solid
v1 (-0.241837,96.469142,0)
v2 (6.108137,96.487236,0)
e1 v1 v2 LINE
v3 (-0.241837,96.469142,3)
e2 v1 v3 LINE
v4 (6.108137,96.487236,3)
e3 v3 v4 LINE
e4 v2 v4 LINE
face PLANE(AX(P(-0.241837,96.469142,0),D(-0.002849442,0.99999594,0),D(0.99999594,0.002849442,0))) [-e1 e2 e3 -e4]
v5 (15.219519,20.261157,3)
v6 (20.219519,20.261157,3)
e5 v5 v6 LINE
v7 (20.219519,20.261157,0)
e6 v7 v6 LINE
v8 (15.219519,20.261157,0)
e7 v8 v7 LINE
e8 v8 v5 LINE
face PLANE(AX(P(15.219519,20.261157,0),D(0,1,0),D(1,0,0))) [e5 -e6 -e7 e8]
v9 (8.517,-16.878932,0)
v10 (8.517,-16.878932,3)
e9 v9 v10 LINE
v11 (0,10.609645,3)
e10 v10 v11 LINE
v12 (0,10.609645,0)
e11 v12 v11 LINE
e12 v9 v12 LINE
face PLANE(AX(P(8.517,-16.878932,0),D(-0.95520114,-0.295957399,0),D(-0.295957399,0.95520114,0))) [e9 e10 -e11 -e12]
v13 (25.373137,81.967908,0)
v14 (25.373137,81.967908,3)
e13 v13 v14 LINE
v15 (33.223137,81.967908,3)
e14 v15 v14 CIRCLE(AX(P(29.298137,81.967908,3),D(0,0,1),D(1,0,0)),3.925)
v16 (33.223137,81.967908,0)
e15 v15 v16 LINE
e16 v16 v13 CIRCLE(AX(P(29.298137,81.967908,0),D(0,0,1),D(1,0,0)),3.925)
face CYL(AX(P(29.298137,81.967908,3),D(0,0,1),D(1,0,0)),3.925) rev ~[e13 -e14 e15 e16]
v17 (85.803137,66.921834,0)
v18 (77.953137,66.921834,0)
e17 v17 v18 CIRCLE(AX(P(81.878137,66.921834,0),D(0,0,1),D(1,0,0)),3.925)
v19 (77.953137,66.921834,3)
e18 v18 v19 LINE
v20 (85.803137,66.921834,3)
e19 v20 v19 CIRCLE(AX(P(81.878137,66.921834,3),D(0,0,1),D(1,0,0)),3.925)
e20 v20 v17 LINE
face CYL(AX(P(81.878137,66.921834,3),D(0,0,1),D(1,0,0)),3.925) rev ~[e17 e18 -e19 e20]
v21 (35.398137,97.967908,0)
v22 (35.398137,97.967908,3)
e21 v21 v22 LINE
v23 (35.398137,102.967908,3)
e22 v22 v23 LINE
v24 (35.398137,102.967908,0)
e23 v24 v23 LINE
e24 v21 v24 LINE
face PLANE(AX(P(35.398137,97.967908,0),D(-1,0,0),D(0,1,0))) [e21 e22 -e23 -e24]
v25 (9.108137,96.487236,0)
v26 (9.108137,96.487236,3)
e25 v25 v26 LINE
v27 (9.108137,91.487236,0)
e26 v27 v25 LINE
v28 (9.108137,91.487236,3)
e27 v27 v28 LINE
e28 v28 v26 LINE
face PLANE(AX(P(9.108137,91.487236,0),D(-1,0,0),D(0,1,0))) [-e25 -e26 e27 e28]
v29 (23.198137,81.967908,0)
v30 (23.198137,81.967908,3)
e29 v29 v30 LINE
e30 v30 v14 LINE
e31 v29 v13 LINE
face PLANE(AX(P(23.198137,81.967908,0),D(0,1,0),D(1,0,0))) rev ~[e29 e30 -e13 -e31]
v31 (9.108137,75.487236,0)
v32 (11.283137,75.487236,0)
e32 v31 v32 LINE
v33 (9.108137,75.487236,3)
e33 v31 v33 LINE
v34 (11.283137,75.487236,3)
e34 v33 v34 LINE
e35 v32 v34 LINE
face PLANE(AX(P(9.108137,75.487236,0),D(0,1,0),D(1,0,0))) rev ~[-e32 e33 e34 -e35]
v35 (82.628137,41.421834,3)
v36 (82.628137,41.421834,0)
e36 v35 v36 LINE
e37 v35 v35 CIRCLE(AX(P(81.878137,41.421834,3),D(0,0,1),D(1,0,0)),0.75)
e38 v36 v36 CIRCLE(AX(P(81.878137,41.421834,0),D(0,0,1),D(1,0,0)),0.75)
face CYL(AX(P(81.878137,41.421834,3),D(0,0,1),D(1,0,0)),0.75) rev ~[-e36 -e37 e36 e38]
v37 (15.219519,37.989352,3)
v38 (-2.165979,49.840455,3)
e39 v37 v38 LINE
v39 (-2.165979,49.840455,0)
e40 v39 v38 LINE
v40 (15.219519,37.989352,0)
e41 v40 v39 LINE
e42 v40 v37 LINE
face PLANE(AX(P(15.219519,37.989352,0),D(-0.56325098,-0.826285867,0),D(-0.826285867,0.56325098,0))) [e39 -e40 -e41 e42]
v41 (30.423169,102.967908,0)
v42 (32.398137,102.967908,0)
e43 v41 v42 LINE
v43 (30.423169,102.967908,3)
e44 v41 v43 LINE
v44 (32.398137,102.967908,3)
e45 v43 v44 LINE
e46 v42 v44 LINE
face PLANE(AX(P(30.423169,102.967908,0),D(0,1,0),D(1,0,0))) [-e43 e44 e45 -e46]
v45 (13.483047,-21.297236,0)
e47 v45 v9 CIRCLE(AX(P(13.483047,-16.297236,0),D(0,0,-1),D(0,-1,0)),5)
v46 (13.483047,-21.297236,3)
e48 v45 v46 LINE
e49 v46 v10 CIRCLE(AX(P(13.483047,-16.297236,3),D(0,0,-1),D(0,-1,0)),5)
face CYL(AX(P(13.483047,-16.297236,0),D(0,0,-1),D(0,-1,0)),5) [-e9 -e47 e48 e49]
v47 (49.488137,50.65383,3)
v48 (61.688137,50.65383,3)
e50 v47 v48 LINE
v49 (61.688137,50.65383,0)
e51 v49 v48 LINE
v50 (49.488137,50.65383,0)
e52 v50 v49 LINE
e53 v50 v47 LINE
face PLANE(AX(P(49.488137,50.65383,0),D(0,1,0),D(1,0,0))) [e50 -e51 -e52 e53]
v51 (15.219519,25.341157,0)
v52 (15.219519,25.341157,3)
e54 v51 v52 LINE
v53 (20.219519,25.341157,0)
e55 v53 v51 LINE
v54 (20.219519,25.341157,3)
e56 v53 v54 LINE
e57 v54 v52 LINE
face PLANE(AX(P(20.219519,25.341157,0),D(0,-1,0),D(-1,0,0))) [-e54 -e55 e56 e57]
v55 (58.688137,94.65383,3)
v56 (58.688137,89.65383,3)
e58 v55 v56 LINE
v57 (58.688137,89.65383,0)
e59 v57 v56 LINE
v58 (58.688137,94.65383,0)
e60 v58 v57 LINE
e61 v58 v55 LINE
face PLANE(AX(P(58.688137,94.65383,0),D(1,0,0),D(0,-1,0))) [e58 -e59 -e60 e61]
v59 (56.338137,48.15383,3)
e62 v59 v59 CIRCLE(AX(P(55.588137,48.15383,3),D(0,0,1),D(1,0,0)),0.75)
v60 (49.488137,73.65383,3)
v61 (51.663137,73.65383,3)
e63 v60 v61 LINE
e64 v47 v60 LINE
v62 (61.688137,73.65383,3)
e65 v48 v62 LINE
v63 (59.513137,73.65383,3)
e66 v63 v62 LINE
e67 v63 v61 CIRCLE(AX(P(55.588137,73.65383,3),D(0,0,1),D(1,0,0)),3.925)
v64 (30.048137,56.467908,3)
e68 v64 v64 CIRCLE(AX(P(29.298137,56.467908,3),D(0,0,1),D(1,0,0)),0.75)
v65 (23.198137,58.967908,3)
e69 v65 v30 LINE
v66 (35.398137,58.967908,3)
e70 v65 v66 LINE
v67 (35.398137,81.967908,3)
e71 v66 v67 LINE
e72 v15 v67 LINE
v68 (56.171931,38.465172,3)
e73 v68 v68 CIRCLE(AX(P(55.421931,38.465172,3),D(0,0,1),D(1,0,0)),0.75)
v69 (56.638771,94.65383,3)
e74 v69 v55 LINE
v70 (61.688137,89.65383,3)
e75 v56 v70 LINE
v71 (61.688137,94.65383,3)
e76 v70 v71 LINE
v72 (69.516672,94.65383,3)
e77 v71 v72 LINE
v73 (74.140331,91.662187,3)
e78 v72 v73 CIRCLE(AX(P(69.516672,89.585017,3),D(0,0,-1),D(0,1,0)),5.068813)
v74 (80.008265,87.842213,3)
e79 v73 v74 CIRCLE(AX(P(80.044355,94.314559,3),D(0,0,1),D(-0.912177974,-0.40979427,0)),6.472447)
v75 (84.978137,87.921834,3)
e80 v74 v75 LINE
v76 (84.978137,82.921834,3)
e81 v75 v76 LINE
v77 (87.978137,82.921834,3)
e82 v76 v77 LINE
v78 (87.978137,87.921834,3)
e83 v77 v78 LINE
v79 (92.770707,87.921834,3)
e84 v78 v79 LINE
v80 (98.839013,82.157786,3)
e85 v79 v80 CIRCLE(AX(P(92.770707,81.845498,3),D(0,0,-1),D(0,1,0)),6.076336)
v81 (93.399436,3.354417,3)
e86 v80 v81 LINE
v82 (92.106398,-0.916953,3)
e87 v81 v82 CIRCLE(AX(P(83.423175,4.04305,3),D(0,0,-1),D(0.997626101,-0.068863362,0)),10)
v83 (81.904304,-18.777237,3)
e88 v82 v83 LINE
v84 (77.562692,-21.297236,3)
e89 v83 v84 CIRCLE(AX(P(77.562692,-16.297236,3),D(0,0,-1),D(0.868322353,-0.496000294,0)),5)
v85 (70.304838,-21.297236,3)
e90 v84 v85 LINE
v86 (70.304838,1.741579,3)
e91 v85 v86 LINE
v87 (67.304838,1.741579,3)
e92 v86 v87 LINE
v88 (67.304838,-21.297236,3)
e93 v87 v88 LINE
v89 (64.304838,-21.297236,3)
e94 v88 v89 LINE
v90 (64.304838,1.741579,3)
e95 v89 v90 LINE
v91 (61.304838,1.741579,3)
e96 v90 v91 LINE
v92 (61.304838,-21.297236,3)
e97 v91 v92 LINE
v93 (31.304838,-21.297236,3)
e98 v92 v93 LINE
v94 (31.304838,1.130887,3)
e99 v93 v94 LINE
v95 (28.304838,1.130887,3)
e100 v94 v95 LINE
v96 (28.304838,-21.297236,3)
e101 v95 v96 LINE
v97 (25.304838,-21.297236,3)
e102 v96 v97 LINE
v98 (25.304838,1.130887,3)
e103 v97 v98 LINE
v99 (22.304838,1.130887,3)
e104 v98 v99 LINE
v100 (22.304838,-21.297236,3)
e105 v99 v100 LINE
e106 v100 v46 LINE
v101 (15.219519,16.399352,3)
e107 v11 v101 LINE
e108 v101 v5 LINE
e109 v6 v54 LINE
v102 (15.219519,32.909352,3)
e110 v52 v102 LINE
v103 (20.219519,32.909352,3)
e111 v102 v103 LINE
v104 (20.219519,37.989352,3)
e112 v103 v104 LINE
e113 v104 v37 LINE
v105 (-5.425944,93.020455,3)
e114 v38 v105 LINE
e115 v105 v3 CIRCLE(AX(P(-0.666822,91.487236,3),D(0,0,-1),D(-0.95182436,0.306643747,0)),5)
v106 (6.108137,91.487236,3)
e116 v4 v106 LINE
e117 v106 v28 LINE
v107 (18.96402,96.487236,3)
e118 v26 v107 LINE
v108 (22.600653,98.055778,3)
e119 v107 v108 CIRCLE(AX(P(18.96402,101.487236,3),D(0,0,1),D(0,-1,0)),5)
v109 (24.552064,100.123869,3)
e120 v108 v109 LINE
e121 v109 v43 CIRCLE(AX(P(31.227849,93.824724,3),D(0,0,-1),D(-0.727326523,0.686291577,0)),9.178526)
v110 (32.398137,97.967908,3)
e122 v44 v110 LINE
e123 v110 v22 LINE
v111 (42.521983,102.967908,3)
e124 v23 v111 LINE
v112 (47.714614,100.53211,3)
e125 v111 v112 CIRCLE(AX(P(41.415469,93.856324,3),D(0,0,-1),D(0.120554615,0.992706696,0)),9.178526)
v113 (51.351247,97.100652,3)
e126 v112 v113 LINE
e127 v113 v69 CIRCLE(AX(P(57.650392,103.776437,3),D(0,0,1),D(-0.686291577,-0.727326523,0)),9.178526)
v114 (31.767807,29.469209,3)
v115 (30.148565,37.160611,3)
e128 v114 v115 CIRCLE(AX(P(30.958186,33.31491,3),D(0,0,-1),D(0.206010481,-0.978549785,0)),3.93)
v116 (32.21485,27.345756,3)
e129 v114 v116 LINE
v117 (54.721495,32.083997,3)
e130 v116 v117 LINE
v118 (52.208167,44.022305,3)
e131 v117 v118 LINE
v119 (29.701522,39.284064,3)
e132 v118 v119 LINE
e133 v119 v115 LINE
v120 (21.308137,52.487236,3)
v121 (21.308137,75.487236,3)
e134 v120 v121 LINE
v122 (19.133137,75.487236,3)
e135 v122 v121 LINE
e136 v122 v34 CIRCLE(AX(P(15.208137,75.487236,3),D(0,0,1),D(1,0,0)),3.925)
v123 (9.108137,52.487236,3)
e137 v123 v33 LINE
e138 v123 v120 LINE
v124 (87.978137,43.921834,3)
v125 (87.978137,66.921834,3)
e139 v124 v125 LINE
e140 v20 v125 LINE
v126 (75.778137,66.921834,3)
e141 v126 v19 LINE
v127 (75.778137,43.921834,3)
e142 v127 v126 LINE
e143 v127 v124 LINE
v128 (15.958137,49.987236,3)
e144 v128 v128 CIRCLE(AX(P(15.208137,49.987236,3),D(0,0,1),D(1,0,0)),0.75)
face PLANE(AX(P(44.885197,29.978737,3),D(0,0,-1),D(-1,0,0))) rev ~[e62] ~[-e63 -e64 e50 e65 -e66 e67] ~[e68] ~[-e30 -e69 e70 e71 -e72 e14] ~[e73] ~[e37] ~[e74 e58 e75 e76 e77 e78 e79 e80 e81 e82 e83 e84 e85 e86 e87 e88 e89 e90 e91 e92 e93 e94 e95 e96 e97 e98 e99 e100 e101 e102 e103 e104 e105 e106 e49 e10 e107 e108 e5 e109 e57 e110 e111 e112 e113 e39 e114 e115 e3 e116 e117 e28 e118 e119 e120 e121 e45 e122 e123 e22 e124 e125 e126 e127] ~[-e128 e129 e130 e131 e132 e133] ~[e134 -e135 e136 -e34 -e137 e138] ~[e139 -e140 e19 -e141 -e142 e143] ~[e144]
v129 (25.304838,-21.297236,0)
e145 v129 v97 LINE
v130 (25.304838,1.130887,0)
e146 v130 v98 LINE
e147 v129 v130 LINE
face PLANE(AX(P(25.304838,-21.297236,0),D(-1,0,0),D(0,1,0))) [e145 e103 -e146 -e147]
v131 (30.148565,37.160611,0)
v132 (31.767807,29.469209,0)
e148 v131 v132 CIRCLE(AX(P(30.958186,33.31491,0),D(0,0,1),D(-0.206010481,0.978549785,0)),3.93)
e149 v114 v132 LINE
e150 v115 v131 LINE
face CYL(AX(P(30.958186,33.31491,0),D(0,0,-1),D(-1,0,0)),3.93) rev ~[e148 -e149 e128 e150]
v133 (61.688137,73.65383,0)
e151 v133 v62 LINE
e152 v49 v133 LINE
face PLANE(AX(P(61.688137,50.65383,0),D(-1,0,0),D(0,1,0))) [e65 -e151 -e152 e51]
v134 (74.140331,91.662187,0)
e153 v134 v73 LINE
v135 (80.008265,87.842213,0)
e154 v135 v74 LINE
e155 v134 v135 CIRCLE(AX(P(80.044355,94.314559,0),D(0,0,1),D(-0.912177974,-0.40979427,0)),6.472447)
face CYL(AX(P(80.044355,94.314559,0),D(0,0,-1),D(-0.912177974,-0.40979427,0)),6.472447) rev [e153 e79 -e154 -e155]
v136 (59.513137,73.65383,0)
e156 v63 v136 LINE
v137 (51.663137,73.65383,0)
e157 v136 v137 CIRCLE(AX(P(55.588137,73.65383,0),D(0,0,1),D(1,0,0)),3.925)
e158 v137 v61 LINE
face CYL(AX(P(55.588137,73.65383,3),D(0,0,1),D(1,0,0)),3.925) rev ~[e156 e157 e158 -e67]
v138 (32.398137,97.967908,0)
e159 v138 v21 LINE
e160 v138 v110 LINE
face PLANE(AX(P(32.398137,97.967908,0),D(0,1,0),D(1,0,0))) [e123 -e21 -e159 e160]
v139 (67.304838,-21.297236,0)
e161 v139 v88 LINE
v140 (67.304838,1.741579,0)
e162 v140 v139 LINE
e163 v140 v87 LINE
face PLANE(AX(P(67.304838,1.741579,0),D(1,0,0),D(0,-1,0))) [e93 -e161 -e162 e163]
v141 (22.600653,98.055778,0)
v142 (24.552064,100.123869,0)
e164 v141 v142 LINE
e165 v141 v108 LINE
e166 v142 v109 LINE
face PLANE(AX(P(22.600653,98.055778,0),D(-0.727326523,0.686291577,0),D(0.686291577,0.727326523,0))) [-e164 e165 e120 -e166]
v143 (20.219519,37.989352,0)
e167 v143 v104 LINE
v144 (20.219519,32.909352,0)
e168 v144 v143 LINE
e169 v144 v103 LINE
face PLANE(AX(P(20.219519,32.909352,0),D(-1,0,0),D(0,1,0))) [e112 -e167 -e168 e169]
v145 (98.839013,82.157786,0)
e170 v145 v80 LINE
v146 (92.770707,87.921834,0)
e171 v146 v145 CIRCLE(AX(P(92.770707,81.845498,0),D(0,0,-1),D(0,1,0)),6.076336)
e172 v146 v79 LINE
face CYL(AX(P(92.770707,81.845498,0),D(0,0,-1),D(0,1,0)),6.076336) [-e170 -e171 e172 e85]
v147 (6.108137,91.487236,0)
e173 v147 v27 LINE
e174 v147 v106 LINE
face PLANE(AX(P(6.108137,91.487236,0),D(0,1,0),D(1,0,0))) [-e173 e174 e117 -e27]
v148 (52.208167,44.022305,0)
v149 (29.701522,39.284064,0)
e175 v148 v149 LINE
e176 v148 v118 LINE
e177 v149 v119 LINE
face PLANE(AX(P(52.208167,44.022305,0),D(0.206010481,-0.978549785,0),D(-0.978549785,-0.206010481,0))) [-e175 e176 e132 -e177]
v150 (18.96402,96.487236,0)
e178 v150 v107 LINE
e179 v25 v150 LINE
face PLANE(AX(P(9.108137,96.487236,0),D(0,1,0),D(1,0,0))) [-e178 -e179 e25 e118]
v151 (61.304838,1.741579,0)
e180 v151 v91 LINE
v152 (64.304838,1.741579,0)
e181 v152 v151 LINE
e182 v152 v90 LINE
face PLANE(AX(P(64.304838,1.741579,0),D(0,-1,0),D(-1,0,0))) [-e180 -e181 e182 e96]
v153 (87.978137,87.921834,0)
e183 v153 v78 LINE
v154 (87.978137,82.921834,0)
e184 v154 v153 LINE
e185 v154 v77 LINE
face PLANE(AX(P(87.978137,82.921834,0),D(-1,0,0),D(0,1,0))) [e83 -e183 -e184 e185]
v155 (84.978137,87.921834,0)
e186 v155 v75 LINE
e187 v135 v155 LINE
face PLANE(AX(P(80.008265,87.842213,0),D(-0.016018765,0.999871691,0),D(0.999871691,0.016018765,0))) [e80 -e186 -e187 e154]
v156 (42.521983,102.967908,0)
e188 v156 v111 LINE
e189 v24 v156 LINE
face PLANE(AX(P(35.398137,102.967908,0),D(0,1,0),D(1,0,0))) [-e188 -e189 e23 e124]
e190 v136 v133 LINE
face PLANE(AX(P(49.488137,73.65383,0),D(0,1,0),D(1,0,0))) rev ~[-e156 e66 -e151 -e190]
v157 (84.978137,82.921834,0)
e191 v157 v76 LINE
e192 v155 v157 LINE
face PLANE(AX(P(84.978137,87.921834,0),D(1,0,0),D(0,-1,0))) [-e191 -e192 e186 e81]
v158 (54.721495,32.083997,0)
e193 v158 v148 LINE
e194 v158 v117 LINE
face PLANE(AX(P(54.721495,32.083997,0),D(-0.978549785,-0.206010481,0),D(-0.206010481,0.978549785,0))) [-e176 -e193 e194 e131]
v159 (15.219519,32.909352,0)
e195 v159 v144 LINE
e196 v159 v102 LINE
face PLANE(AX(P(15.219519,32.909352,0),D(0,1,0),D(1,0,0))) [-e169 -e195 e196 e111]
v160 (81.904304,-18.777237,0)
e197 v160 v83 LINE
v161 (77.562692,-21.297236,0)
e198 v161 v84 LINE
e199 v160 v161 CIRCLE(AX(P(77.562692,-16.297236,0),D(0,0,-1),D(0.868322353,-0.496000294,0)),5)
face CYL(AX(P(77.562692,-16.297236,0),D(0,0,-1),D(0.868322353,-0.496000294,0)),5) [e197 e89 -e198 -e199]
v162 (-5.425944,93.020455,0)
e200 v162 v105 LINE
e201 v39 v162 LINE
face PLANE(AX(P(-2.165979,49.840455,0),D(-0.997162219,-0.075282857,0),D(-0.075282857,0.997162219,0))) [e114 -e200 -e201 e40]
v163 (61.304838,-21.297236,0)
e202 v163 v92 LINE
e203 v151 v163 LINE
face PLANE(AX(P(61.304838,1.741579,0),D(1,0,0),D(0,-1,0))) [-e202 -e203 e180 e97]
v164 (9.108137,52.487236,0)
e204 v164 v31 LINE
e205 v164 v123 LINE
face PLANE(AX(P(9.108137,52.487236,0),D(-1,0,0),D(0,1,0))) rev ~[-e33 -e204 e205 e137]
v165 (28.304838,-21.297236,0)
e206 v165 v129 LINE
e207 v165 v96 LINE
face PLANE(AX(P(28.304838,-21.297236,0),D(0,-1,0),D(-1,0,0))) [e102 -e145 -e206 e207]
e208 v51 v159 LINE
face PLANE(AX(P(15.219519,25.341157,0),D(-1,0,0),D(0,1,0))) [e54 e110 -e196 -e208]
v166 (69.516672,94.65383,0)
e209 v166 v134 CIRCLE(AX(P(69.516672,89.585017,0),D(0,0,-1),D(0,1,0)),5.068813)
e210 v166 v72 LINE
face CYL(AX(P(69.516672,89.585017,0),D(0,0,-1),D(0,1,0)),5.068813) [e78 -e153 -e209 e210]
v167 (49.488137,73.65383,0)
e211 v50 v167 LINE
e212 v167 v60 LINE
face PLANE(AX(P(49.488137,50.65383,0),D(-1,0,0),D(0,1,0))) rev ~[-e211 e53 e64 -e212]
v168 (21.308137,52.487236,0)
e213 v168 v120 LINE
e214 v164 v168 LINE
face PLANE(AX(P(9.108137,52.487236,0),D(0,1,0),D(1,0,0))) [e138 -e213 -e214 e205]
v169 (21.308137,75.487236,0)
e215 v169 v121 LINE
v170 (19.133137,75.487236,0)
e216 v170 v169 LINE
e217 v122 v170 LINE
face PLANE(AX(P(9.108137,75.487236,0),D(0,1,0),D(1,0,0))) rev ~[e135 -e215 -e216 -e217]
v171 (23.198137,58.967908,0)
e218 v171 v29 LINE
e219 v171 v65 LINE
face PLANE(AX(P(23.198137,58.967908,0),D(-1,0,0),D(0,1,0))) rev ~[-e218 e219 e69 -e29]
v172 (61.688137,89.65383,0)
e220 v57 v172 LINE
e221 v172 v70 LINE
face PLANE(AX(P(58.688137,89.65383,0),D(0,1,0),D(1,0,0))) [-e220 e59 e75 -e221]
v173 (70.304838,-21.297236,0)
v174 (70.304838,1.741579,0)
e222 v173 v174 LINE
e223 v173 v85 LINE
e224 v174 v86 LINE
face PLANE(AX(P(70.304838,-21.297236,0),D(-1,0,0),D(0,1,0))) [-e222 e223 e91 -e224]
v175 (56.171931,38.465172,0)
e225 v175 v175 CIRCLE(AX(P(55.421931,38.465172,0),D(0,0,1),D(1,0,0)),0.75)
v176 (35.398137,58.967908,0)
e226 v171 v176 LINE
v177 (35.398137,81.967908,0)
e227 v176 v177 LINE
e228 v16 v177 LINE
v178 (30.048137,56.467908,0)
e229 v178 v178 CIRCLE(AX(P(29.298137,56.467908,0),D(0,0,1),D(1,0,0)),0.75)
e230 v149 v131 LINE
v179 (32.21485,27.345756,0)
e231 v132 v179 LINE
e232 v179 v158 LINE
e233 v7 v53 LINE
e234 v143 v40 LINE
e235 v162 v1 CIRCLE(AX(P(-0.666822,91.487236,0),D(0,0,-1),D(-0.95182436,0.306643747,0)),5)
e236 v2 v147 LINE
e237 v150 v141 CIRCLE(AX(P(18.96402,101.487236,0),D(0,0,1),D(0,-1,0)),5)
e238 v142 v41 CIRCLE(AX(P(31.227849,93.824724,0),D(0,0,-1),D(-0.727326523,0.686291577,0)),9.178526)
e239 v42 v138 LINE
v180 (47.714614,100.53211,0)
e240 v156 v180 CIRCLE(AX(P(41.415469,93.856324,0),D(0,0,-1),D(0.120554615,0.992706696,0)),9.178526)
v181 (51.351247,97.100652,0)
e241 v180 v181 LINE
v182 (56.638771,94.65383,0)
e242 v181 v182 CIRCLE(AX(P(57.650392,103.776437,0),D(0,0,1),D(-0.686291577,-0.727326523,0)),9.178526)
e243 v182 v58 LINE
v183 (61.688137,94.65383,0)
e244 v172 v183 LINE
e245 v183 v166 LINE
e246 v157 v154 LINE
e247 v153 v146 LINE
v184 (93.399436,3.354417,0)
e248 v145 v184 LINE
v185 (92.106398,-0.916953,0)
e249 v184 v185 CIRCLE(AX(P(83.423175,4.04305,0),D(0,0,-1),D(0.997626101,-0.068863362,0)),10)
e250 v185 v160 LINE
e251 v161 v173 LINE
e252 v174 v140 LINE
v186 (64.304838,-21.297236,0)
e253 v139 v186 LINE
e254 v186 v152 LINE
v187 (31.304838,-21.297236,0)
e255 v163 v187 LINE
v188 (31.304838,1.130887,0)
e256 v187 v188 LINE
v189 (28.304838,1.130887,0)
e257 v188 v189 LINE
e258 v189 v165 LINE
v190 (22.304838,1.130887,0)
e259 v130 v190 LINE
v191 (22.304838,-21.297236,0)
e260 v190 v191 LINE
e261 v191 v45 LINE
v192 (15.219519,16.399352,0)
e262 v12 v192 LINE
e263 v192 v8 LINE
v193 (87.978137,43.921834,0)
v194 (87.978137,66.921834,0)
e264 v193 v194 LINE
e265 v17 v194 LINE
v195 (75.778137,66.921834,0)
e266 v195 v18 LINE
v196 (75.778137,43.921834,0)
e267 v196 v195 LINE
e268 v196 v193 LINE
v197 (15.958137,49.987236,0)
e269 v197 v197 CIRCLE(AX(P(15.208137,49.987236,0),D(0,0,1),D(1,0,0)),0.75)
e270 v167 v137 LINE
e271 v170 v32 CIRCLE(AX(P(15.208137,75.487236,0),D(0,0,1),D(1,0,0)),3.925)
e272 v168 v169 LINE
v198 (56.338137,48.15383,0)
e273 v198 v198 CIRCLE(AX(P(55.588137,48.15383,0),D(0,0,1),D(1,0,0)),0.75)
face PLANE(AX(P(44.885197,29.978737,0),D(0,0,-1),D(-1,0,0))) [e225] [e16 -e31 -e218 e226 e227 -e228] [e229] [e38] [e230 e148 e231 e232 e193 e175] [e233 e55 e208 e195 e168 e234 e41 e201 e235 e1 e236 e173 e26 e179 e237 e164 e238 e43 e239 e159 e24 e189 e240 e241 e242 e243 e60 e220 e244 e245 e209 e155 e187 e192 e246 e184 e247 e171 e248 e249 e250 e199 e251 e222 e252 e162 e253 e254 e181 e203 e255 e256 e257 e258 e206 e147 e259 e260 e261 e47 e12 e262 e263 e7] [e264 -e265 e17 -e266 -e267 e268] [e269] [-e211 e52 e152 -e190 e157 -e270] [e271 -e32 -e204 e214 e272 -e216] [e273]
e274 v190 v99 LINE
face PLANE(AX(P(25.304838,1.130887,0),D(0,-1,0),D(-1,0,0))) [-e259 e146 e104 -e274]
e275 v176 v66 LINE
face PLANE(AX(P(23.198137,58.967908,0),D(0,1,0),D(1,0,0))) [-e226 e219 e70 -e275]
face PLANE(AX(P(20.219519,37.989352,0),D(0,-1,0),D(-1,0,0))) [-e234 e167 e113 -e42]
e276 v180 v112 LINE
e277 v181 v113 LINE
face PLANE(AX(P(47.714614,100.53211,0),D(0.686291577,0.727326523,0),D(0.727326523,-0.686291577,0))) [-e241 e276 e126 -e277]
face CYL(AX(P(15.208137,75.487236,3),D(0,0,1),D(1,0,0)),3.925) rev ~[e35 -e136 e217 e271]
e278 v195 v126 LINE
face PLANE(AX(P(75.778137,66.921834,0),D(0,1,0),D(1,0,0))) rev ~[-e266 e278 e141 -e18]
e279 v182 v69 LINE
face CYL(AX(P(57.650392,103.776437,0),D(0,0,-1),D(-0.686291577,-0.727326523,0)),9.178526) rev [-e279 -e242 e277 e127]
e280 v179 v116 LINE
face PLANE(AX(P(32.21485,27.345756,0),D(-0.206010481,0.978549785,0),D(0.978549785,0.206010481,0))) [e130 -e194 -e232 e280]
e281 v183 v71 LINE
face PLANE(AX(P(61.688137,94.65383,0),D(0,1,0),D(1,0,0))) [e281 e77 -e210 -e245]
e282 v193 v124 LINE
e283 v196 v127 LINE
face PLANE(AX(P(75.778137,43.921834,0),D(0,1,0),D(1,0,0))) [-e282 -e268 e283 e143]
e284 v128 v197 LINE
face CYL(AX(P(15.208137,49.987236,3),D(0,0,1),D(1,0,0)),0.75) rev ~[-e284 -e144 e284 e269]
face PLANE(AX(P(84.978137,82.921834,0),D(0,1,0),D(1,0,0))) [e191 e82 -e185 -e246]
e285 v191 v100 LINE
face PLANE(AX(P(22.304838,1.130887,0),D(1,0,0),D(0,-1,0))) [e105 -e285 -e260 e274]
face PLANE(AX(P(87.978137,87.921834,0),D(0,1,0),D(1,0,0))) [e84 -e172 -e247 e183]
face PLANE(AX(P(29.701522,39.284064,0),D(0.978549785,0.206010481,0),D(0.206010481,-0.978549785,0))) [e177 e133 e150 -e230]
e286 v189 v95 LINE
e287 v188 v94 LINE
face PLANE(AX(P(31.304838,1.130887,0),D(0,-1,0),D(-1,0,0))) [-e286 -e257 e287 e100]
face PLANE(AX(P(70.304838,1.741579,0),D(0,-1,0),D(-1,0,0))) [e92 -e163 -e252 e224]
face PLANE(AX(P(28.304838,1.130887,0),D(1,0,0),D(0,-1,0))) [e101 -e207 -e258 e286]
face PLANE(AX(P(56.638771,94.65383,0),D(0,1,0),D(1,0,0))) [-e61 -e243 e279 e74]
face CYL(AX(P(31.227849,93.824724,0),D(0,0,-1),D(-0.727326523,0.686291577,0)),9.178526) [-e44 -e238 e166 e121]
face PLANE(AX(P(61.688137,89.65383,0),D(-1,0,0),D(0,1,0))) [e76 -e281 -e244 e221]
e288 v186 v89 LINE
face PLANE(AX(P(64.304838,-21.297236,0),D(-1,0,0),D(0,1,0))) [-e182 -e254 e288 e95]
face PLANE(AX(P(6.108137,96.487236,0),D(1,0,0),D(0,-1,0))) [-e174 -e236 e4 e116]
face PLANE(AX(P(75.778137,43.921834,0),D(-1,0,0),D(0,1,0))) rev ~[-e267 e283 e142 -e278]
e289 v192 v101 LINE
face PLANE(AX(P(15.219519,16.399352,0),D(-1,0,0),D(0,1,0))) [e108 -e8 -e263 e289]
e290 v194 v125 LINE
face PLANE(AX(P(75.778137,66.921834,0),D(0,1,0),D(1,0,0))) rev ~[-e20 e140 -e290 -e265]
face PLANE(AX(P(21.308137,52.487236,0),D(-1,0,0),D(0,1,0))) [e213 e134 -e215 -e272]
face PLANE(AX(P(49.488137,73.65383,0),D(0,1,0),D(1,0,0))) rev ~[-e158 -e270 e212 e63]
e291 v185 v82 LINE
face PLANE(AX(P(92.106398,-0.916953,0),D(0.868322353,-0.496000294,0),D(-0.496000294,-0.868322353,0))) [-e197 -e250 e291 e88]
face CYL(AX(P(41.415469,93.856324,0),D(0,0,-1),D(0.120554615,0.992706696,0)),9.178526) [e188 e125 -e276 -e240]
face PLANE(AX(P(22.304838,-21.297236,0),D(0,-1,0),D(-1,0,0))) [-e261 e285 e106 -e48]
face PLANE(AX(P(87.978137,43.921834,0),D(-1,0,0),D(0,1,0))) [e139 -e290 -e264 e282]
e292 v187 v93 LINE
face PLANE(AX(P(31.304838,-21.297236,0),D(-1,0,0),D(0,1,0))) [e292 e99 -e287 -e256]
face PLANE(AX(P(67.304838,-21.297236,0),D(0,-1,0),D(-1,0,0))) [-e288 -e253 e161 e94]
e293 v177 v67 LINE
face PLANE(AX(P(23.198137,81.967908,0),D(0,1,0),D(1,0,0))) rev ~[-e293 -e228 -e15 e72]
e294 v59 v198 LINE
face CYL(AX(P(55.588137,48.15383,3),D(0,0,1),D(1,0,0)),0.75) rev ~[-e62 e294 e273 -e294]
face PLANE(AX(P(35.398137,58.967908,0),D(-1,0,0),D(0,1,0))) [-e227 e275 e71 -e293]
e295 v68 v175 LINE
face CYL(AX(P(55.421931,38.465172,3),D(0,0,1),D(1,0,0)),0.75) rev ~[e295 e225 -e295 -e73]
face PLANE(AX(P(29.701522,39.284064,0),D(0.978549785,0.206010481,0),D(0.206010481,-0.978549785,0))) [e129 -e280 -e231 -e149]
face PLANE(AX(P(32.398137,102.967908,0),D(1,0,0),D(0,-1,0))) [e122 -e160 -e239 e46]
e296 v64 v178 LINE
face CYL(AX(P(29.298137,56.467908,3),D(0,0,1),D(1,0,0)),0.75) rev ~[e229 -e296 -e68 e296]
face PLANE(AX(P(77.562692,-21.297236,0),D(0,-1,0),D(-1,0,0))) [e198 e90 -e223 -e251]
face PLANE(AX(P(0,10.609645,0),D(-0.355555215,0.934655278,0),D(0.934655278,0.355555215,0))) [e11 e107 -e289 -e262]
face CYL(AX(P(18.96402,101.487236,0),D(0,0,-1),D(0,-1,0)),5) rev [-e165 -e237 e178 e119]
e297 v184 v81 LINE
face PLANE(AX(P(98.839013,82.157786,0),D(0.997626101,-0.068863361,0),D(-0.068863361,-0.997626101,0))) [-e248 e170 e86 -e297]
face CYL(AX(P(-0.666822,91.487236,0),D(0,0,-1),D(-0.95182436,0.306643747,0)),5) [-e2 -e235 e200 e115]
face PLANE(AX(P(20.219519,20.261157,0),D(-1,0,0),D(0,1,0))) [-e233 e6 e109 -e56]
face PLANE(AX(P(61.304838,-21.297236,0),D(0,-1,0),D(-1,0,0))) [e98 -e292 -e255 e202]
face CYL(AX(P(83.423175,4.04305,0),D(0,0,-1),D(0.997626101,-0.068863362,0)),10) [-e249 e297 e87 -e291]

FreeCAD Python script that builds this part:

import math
import FreeCAD as App
import Part
import Sketcher

V = App.Vector
Q = App.Units.Quantity


def add_polygon(sketch, points):
    """Adds a closed chain of lines whose ends are joined by coincident constraints."""
    first, n = sketch.GeometryCount, len(points)
    for a, b in zip(points, points[1:] + points[:1]):
        sketch.addGeometry(Part.LineSegment(App.Vector(*a, 0), App.Vector(*b, 0)), False)
    for i in range(n):
        sketch.addConstraint(Sketcher.Constraint("Coincident", first + i, 2, first + (i + 1) % n, 1))

doc = App.newDocument("Part")
body = doc.addObject("PartDesign::Body", "Body")

# Sketch on XY plane
sketch1 = body.newObject("Sketcher::SketchObject", "Sketch")
sketch1.AttachmentSupport = (doc.getObject("XY_Plane"), [""])
sketch1.MapMode = "FlatFace"
sketch1.addGeometry(Part.LineSegment(V(24.552064, 100.123869, 0), V(22.600653, 98.055778, 0)), False)  # 0
sketch1.addGeometry(Part.ArcOfCircle(Part.Circle(V(18.96402, 101.487236, 0), V(0, 0, 1), 5), math.radians(-90), math.radians(-43.337267)), False)  # 1
sketch1.addGeometry(Part.LineSegment(V(18.96402, 96.487236, 0), V(9.108137, 96.487236, 0)), False)  # 2
sketch1.addGeometry(Part.LineSegment(V(9.108137, 96.487236, 0), V(9.108137, 91.487236, 0)), False)  # 3
sketch1.addGeometry(Part.LineSegment(V(9.108137, 91.487236, 0), V(6.108137, 91.487236, 0)), False)  # 4
sketch1.addGeometry(Part.LineSegment(V(6.108137, 91.487236, 0), V(6.108137, 96.487236, 0)), False)  # 5
sketch1.addGeometry(Part.LineSegment(V(6.108137, 96.487236, 0), V(-0.241837, 96.469142, 0)), False)  # 6
sketch1.addGeometry(Part.ArcOfCircle(Part.Circle(V(-0.666822, 91.487236, 0), V(0, 0, 1), 5), math.radians(85.124149), math.radians(162.142917)), False)  # 7
sketch1.addGeometry(Part.LineSegment(V(-5.425944, 93.020455, 0), V(-2.165979, 49.840455, 0)), False)  # 8
sketch1.addGeometry(Part.LineSegment(V(-2.165979, 49.840455, 0), V(15.219519, 37.989352, 0)), False)  # 9
sketch1.addGeometry(Part.LineSegment(V(15.219519, 37.989352, 0), V(20.219519, 37.989352, 0)), False)  # 10
sketch1.addGeometry(Part.LineSegment(V(20.219519, 37.989352, 0), V(20.219519, 32.909352, 0)), False)  # 11
sketch1.addGeometry(Part.LineSegment(V(20.219519, 32.909352, 0), V(15.219519, 32.909352, 0)), False)  # 12
sketch1.addGeometry(Part.LineSegment(V(15.219519, 32.909352, 0), V(15.219519, 25.341157, 0)), False)  # 13
sketch1.addGeometry(Part.LineSegment(V(15.219519, 25.341157, 0), V(20.219519, 25.341157, 0)), False)  # 14
sketch1.addGeometry(Part.LineSegment(V(20.219519, 25.341157, 0), V(20.219519, 20.261157, 0)), False)  # 15
sketch1.addGeometry(Part.LineSegment(V(20.219519, 20.261157, 0), V(15.219519, 20.261157, 0)), False)  # 16
sketch1.addGeometry(Part.LineSegment(V(15.219519, 20.261157, 0), V(15.219519, 16.399352, 0)), False)  # 17
sketch1.addGeometry(Part.LineSegment(V(15.219519, 16.399352, 0), V(0, 10.609645, 0)), False)  # 18
sketch1.addGeometry(Part.LineSegment(V(0, 10.609645, 0), V(8.517, -16.878932, 0)), False)  # 19
sketch1.addGeometry(Part.ArcOfCircle(Part.Circle(V(13.483047, -16.297236, 0), V(0, 0, 1), 5), math.radians(-173.319124), math.radians(-90)), False)  # 20
sketch1.addGeometry(Part.LineSegment(V(13.483047, -21.297236, 0), V(22.304838, -21.297236, 0)), False)  # 21
sketch1.addGeometry(Part.LineSegment(V(22.304838, -21.297236, 0), V(22.304838, 1.130887, 0)), False)  # 22
sketch1.addGeometry(Part.LineSegment(V(22.304838, 1.130887, 0), V(25.304838, 1.130887, 0)), False)  # 23
sketch1.addGeometry(Part.LineSegment(V(25.304838, 1.130887, 0), V(25.304838, -21.297236, 0)), False)  # 24
sketch1.addGeometry(Part.LineSegment(V(25.304838, -21.297236, 0), V(28.304838, -21.297236, 0)), False)  # 25
sketch1.addGeometry(Part.LineSegment(V(28.304838, -21.297236, 0), V(28.304838, 1.130887, 0)), False)  # 26
sketch1.addGeometry(Part.LineSegment(V(28.304838, 1.130887, 0), V(31.304838, 1.130887, 0)), False)  # 27
sketch1.addGeometry(Part.LineSegment(V(31.304838, 1.130887, 0), V(31.304838, -21.297236, 0)), False)  # 28
sketch1.addGeometry(Part.LineSegment(V(31.304838, -21.297236, 0), V(61.304838, -21.297236, 0)), False)  # 29
sketch1.addGeometry(Part.LineSegment(V(61.304838, -21.297236, 0), V(61.304838, 1.741579, 0)), False)  # 30
sketch1.addGeometry(Part.LineSegment(V(61.304838, 1.741579, 0), V(64.304838, 1.741579, 0)), False)  # 31
sketch1.addGeometry(Part.LineSegment(V(64.304838, 1.741579, 0), V(64.304838, -21.297236, 0)), False)  # 32
sketch1.addGeometry(Part.LineSegment(V(64.304838, -21.297236, 0), V(67.304838, -21.297236, 0)), False)  # 33
sketch1.addGeometry(Part.LineSegment(V(67.304838, -21.297236, 0), V(67.304838, 1.741579, 0)), False)  # 34
sketch1.addGeometry(Part.LineSegment(V(67.304838, 1.741579, 0), V(70.304838, 1.741579, 0)), False)  # 35
sketch1.addGeometry(Part.LineSegment(V(70.304838, 1.741579, 0), V(70.304838, -21.297236, 0)), False)  # 36
sketch1.addGeometry(Part.LineSegment(V(70.304838, -21.297236, 0), V(77.562692, -21.297236, 0)), False)  # 37
sketch1.addGeometry(Part.ArcOfCircle(Part.Circle(V(77.562692, -16.297236, 0), V(0, 0, 1), 5), math.radians(-90), math.radians(-29.735733)), False)  # 38
sketch1.addGeometry(Part.LineSegment(V(81.904304, -18.777237, 0), V(92.106398, -0.916953, 0)), False)  # 39
sketch1.addGeometry(Part.ArcOfCircle(Part.Circle(V(83.423175, 4.04305, 0), V(0, 0, 1), 10), math.radians(-29.735732), math.radians(-3.948705)), False)  # 40
sketch1.addGeometry(Part.LineSegment(V(93.399436, 3.354417, 0), V(98.839013, 82.157786, 0)), False)  # 41
sketch1.addGeometry(Part.ArcOfCircle(Part.Circle(V(92.770707, 81.845498, 0), V(0, 0, 1), 6.076336), math.radians(2.945968), math.radians(90)), False)  # 42
sketch1.addGeometry(Part.LineSegment(V(92.770707, 87.921834, 0), V(87.978137, 87.921834, 0)), False)  # 43
sketch1.addGeometry(Part.LineSegment(V(87.978137, 87.921834, 0), V(87.978137, 82.921834, 0)), False)  # 44
sketch1.addGeometry(Part.LineSegment(V(87.978137, 82.921834, 0), V(84.978137, 82.921834, 0)), False)  # 45
sketch1.addGeometry(Part.LineSegment(V(84.978137, 82.921834, 0), V(84.978137, 87.921834, 0)), False)  # 46
sketch1.addGeometry(Part.LineSegment(V(84.978137, 87.921834, 0), V(80.008265, 87.842213, 0)), False)  # 47
sketch1.addGeometry(Part.ArcOfCircle(Part.Circle(V(80.044355, 94.314559, 0), V(0, 0, 1), 6.472447), math.radians(-155.808088), math.radians(-90.319479)), False)  # 48
sketch1.addGeometry(Part.ArcOfCircle(Part.Circle(V(69.516672, 89.585017, 0), V(0, 0, 1), 5.068813), math.radians(24.191912), math.radians(90)), False)  # 49
sketch1.addGeometry(Part.LineSegment(V(69.516672, 94.65383, 0), V(61.688137, 94.65383, 0)), False)  # 50
sketch1.addGeometry(Part.LineSegment(V(61.688137, 94.65383, 0), V(61.688137, 89.65383, 0)), False)  # 51
sketch1.addGeometry(Part.LineSegment(V(61.688137, 89.65383, 0), V(58.688137, 89.65383, 0)), False)  # 52
sketch1.addGeometry(Part.LineSegment(V(58.688137, 89.65383, 0), V(58.688137, 94.65383, 0)), False)  # 53
sketch1.addGeometry(Part.LineSegment(V(58.688137, 94.65383, 0), V(56.638771, 94.65383, 0)), False)  # 54
sketch1.addGeometry(Part.ArcOfCircle(Part.Circle(V(57.650392, 103.776437, 0), V(0, 0, 1), 9.178526), math.radians(-133.337267), math.radians(-96.327771)), False)  # 55
sketch1.addGeometry(Part.LineSegment(V(51.351247, 97.100652, 0), V(47.714614, 100.53211, 0)), False)  # 56
sketch1.addGeometry(Part.ArcOfCircle(Part.Circle(V(41.415469, 93.856324, 0), V(0, 0, 1), 9.178526), math.radians(46.662733), math.radians(83.075888)), False)  # 57
sketch1.addGeometry(Part.LineSegment(V(42.521983, 102.967908, 0), V(35.398137, 102.967908, 0)), False)  # 58
sketch1.addGeometry(Part.LineSegment(V(35.398137, 102.967908, 0), V(35.398137, 97.967908, 0)), False)  # 59
sketch1.addGeometry(Part.LineSegment(V(35.398137, 97.967908, 0), V(32.398137, 97.967908, 0)), False)  # 60
sketch1.addGeometry(Part.LineSegment(V(32.398137, 97.967908, 0), V(32.398137, 102.967908, 0)), False)  # 61
sketch1.addGeometry(Part.LineSegment(V(32.398137, 102.967908, 0), V(30.423169, 102.967908, 0)), False)  # 62
sketch1.addGeometry(Part.ArcOfCircle(Part.Circle(V(31.227849, 93.824724, 0), V(0, 0, 1), 9.178526), math.radians(95.02957), math.radians(136.662733)), False)  # 63
add_polygon(sketch1, [(75.778137, 43.921834), (75.778137, 66.921834), (87.978137, 66.921834), (87.978137, 43.921834)])  # lines 64-67
add_polygon(sketch1, [(49.488137, 50.65383), (49.488137, 73.65383), (61.688137, 73.65383), (61.688137, 50.65383)])  # lines 68-71
add_polygon(sketch1, [(23.198137, 58.967908), (23.198137, 81.967908), (35.398137, 81.967908), (35.398137, 58.967908)])  # lines 72-75
add_polygon(sketch1, [(9.108137, 52.487236), (9.108137, 75.487236), (21.308137, 75.487236), (21.308137, 52.487236)])  # lines 76-79
sketch1.addConstraint([
    Sketcher.Constraint("Tangent", 0, 2, 1, 2),
    Sketcher.Constraint("Tangent", 1, 1, 2, 1),
    Sketcher.Constraint("Coincident", 2, 2, 3, 1),
    Sketcher.Constraint("Coincident", 3, 2, 4, 1),
    Sketcher.Constraint("Coincident", 4, 2, 5, 1),
    Sketcher.Constraint("Coincident", 5, 2, 6, 1),
    Sketcher.Constraint("Coincident", 6, 2, 7, 1),
    Sketcher.Constraint("Coincident", 7, 2, 8, 1),
    Sketcher.Constraint("Coincident", 8, 2, 9, 1),
    Sketcher.Constraint("Coincident", 9, 2, 10, 1),
    Sketcher.Constraint("Coincident", 10, 2, 11, 1),
    Sketcher.Constraint("Coincident", 11, 2, 12, 1),
    Sketcher.Constraint("Coincident", 12, 2, 13, 1),
    Sketcher.Constraint("Coincident", 13, 2, 14, 1),
    Sketcher.Constraint("Coincident", 14, 2, 15, 1),
    Sketcher.Constraint("Coincident", 15, 2, 16, 1),
    Sketcher.Constraint("Coincident", 16, 2, 17, 1),
    Sketcher.Constraint("Coincident", 17, 2, 18, 1),
    Sketcher.Constraint("Coincident", 18, 2, 19, 1),
    Sketcher.Constraint("Coincident", 19, 2, 20, 1),
    Sketcher.Constraint("Tangent", 20, 2, 21, 1),
    Sketcher.Constraint("Coincident", 21, 2, 22, 1),
    Sketcher.Constraint("Coincident", 22, 2, 23, 1),
    Sketcher.Constraint("Coincident", 23, 2, 24, 1),
    Sketcher.Constraint("Coincident", 24, 2, 25, 1),
    Sketcher.Constraint("Coincident", 25, 2, 26, 1),
    Sketcher.Constraint("Coincident", 26, 2, 27, 1),
    Sketcher.Constraint("Coincident", 27, 2, 28, 1),
    Sketcher.Constraint("Coincident", 28, 2, 29, 1),
    Sketcher.Constraint("Coincident", 29, 2, 30, 1),
    Sketcher.Constraint("Coincident", 30, 2, 31, 1),
    Sketcher.Constraint("Coincident", 31, 2, 32, 1),
    Sketcher.Constraint("Coincident", 32, 2, 33, 1),
    Sketcher.Constraint("Coincident", 33, 2, 34, 1),
    Sketcher.Constraint("Coincident", 34, 2, 35, 1),
    Sketcher.Constraint("Coincident", 35, 2, 36, 1),
    Sketcher.Constraint("Coincident", 36, 2, 37, 1),
    Sketcher.Constraint("Tangent", 37, 2, 38, 1),
    Sketcher.Constraint("Tangent", 38, 2, 39, 1),
    Sketcher.Constraint("Tangent", 39, 2, 40, 1),
    Sketcher.Constraint("Tangent", 40, 2, 41, 1),
    Sketcher.Constraint("Coincident", 41, 2, 42, 1),
    Sketcher.Constraint("Tangent", 42, 2, 43, 1),
    Sketcher.Constraint("Coincident", 43, 2, 44, 1),
    Sketcher.Constraint("Coincident", 44, 2, 45, 1),
    Sketcher.Constraint("Coincident", 45, 2, 46, 1),
    Sketcher.Constraint("Coincident", 46, 2, 47, 1),
    Sketcher.Constraint("Coincident", 47, 2, 48, 2),
    Sketcher.Constraint("Tangent", 48, 1, 49, 1),
    Sketcher.Constraint("Tangent", 49, 2, 50, 1),
    Sketcher.Constraint("Coincident", 50, 2, 51, 1),
    Sketcher.Constraint("Coincident", 51, 2, 52, 1),
    Sketcher.Constraint("Coincident", 52, 2, 53, 1),
    Sketcher.Constraint("Coincident", 53, 2, 54, 1),
    Sketcher.Constraint("Coincident", 54, 2, 55, 2),
    Sketcher.Constraint("Tangent", 55, 1, 56, 1),
    Sketcher.Constraint("Tangent", 56, 2, 57, 1),
    Sketcher.Constraint("Coincident", 57, 2, 58, 1),
    Sketcher.Constraint("Coincident", 58, 2, 59, 1),
    Sketcher.Constraint("Coincident", 59, 2, 60, 1),
    Sketcher.Constraint("Coincident", 60, 2, 61, 1),
    Sketcher.Constraint("Coincident", 61, 2, 62, 1),
    Sketcher.Constraint("Coincident", 62, 2, 63, 1),
    Sketcher.Constraint("Tangent", 63, 2, 0, 1),
    Sketcher.Constraint("Horizontal", 2),
    Sketcher.Constraint("Vertical", 3),
    Sketcher.Constraint("Horizontal", 4),
    Sketcher.Constraint("Vertical", 5),
    Sketcher.Constraint("Horizontal", 10),
    Sketcher.Constraint("Vertical", 11),
    Sketcher.Constraint("Horizontal", 12),
    Sketcher.Constraint("Vertical", 13),
    Sketcher.Constraint("Horizontal", 14),
    Sketcher.Constraint("Vertical", 15),
    Sketcher.Constraint("Horizontal", 16),
    Sketcher.Constraint("Vertical", 17),
    Sketcher.Constraint("Horizontal", 21),
    Sketcher.Constraint("Vertical", 22),
    Sketcher.Constraint("Horizontal", 23),
    Sketcher.Constraint("Vertical", 24),
    Sketcher.Constraint("Horizontal", 25),
    Sketcher.Constraint("Vertical", 26),
    Sketcher.Constraint("Horizontal", 27),
    Sketcher.Constraint("Vertical", 28),
    Sketcher.Constraint("Horizontal", 29),
    Sketcher.Constraint("Vertical", 30),
    Sketcher.Constraint("Horizontal", 31),
    Sketcher.Constraint("Vertical", 32),
    Sketcher.Constraint("Horizontal", 33),
    Sketcher.Constraint("Vertical", 34),
    Sketcher.Constraint("Horizontal", 35),
    Sketcher.Constraint("Vertical", 36),
    Sketcher.Constraint("Horizontal", 37),
    Sketcher.Constraint("Horizontal", 43),
    Sketcher.Constraint("Vertical", 44),
    Sketcher.Constraint("Horizontal", 45),
    Sketcher.Constraint("Vertical", 46),
    Sketcher.Constraint("Horizontal", 50),
    Sketcher.Constraint("Vertical", 51),
    Sketcher.Constraint("Horizontal", 52),
    Sketcher.Constraint("Vertical", 53),
    Sketcher.Constraint("Horizontal", 54),
    Sketcher.Constraint("Horizontal", 58),
    Sketcher.Constraint("Vertical", 59),
    Sketcher.Constraint("Horizontal", 60),
    Sketcher.Constraint("Vertical", 61),
    Sketcher.Constraint("Horizontal", 62),
    Sketcher.Constraint("Vertical", 64),
    Sketcher.Constraint("Horizontal", 65),
    Sketcher.Constraint("Vertical", 66),
    Sketcher.Constraint("Horizontal", 67),
    Sketcher.Constraint("Vertical", 68),
    Sketcher.Constraint("Horizontal", 69),
    Sketcher.Constraint("Vertical", 70),
    Sketcher.Constraint("Horizontal", 71),
    Sketcher.Constraint("Vertical", 72),
    Sketcher.Constraint("Horizontal", 73),
    Sketcher.Constraint("Vertical", 74),
    Sketcher.Constraint("Horizontal", 75),
    Sketcher.Constraint("Vertical", 76),
    Sketcher.Constraint("Horizontal", 77),
    Sketcher.Constraint("Vertical", 78),
    Sketcher.Constraint("Horizontal", 79),
    Sketcher.Constraint("Equal", 1, 7),
    Sketcher.Constraint("Equal", 7, 20),
    Sketcher.Constraint("Equal", 20, 38),
    Sketcher.Constraint("Equal", 55, 57),
    Sketcher.Constraint("Equal", 57, 63),
    Sketcher.Constraint("PointOnObject", 18, 2, -2),
    Sketcher.Constraint("Perpendicular", 0, 56),
    Sketcher.Constraint("Horizontal", 20, 3, 38, 3),
    Sketcher.Constraint("Horizontal", 7, 3, 3, 2),
    Sketcher.Constraint("Horizontal", 2, 2, 5, 2),
    Sketcher.Constraint("Horizontal", 21, 2, 24, 2),
    Sketcher.Constraint("Horizontal", 23, 2, 26, 2),
    Sketcher.Constraint("Horizontal", 25, 2, 28, 2),
    Sketcher.Constraint("Horizontal", 29, 2, 32, 2),
    Sketcher.Constraint("Horizontal", 31, 2, 34, 2),
    Sketcher.Constraint("Horizontal", 43, 2, 46, 2),
    Sketcher.Constraint("Horizontal", 50, 2, 53, 2),
    Sketcher.Constraint("Horizontal", 58, 2, 61, 2),
    Sketcher.Constraint("Vertical", 9, 2, 12, 2),
    Sketcher.Constraint("Vertical", 11, 2, 14, 2),
    Sketcher.Constraint("Vertical", 13, 2, 16, 2),
    Sketcher.Constraint("Vertical", 44, 2, 65, 2),
    Sketcher.Constraint("Vertical", 51, 2, 69, 2),
    Sketcher.Constraint("Vertical", 59, 2, 73, 2),
    Sketcher.Constraint("Vertical", 3, 2, 76, 2),
    Sketcher.Constraint("Equal", 4, 23),
    Sketcher.Constraint("Equal", 23, 25),
    Sketcher.Constraint("Equal", 25, 27),
    Sketcher.Constraint("Equal", 27, 31),
    Sketcher.Constraint("Equal", 31, 33),
    Sketcher.Constraint("Equal", 33, 35),
    Sketcher.Constraint("Equal", 35, 45),
    Sketcher.Constraint("Equal", 45, 52),
    Sketcher.Constraint("Equal", 52, 60),
    Sketcher.Constraint("Equal", 67, 69),
    Sketcher.Constraint("Equal", 71, 73),
    Sketcher.Constraint("Equal", 75, 77),
    Sketcher.Constraint("Equal", 16, 3),
    Sketcher.Constraint("Equal", 11, 15),
    Sketcher.Constraint("Equal", 5, 44),
    Sketcher.Constraint("Equal", 46, 51),
    Sketcher.Constraint("Equal", 53, 59),
    Sketcher.Constraint("Equal", 66, 68),
    Sketcher.Constraint("Equal", 70, 72),
    Sketcher.Constraint("Equal", 74, 76),
    Sketcher.Constraint("Radius", 1, Q("5 mm")),
    Sketcher.Constraint("Radius", 40, Q("10 mm")),
    Sketcher.Constraint("DistanceX", 4, 2, 4, 1, Q("3 mm")),
    Sketcher.Constraint("DistanceX", 10, 1, 10, 2, Q("5 mm")),
    Sketcher.Constraint("DistanceX", 29, 1, 29, 2, Q("30 mm")),
    Sketcher.Constraint("DistanceY", 64, 1, 64, 2, Q("23 mm")),
    Sketcher.Constraint("Distance", 56, Q("5 mm")),
    Sketcher.Constraint("DistanceX", 65, 1, 65, 2, Q("12.2 mm")),
    Sketcher.Constraint("DistanceY", 11, 2, 11, 1, Q("5.08 mm")),
    Sketcher.Constraint("Distance", 6, Q("6.35 mm")),
    Sketcher.Constraint("DistanceX", -1, 1, 19, 2, Q("8.517 mm")),
    Sketcher.Constraint("Radius", 42, Q("6.076336 mm")),
    Sketcher.Constraint("Radius", 48, Q("6.472447 mm")),
    Sketcher.Constraint("Radius", 49, Q("5.068813 mm")),
    Sketcher.Constraint("Radius", 55, Q("9.178526 mm")),
    Sketcher.Constraint("DistanceX", 21, 1, 21, 2, Q("8.821791 mm")),
    Sketcher.Constraint("DistanceX", 43, 2, 43, 1, Q("4.79257 mm")),
    Sketcher.Constraint("DistanceX", -1, 1, 39, 2, Q("92.106398 mm")),
    Sketcher.Constraint("Distance", 19, Q("28.77779 mm")),
    Sketcher.Constraint("Distance", 47, Q("4.97051 mm")),
    Sketcher.Constraint("DistanceX", 2, 2, 2, 1, Q("9.855883 mm")),
    Sketcher.Constraint("DistanceX", 37, 1, 37, 2, Q("7.257854 mm")),
    Sketcher.Constraint("DistanceX", 50, 2, 50, 1, Q("7.828535 mm")),
    Sketcher.Constraint("DistanceX", 54, 2, 54, 1, Q("2.049366 mm")),
    Sketcher.Constraint("DistanceX", 58, 2, 58, 1, Q("7.123846 mm")),
    Sketcher.Constraint("DistanceX", 62, 2, 62, 1, Q("1.974968 mm")),
    Sketcher.Constraint("DistanceY", 13, 2, 13, 1, Q("7.568194 mm")),
    Sketcher.Constraint("DistanceY", 17, 2, 17, 1, Q("3.861806 mm")),
    Sketcher.Constraint("DistanceY", 22, 1, 22, 2, Q("22.428123 mm")),
    Sketcher.Constraint("DistanceY", 30, 1, 30, 2, Q("23.038815 mm")),
    Sketcher.Constraint("DistanceX", -1, 1, 1, 3, Q("18.96402 mm")),
    Sketcher.Constraint("DistanceY", -1, 1, 40, 3, Q("4.04305 mm")),
    Sketcher.Constraint("DistanceY", -1, 1, 48, 3, Q("94.314559 mm")),
    Sketcher.Constraint("DistanceX", -1, 1, 49, 3, Q("69.516672 mm")),
    Sketcher.Constraint("DistanceX", -1, 1, 55, 3, Q("57.650392 mm")),
    Sketcher.Constraint("DistanceX", -1, 1, 57, 3, Q("41.415469 mm")),
    Sketcher.Constraint("DistanceX", -1, 1, 63, 3, Q("31.227849 mm")),
    Sketcher.Constraint("DistanceY", -1, 1, 0, 2, Q("98.055778 mm")),
    Sketcher.Constraint("DistanceX", 8, 2, -1, 1, Q("2.165979 mm")),
    Sketcher.Constraint("DistanceX", -1, 1, 9, 2, Q("15.219519 mm")),
    Sketcher.Constraint("DistanceY", -1, 1, 9, 2, Q("37.989352 mm")),
    Sketcher.Constraint("DistanceX", -1, 1, 21, 2, Q("22.304838 mm")),
    Sketcher.Constraint("DistanceY", -1, 1, 30, 2, Q("1.741579 mm")),
    Sketcher.Constraint("DistanceX", -1, 1, 48, 1, Q("74.140331 mm")),
    Sketcher.Constraint("DistanceY", -1, 1, 68, 2, Q("73.65383 mm")),
    Sketcher.Constraint("DistanceY", -1, 1, 72, 2, Q("81.967908 mm")),
    Sketcher.Constraint("Distance", 8, Q("43.302884 mm")),
    Sketcher.Constraint("Distance", 9, Q("21.040537 mm")),
    Sketcher.Constraint("Distance", 41, Q("78.990886 mm")),
    Sketcher.Constraint("DistanceX", 7, 3, -1, 1, Q("0.666822 mm")),
    Sketcher.Constraint("DistanceX", -1, 1, 42, 3, Q("92.770707 mm")),
    Sketcher.Constraint("DistanceY", -1, 1, 42, 3, Q("81.845498 mm")),
    Sketcher.Constraint("DistanceY", -1, 1, 64, 2, Q("66.921834 mm")),
    Sketcher.Constraint("DistanceY", -1, 1, 76, 2, Q("75.487236 mm")),
])
pad1 = body.newObject("PartDesign::Pad", "Pad")
pad1.Profile = sketch1
pad1.Length = 3

# Sketch on XY plane
sketch2 = body.newObject("Sketcher::SketchObject", "Sketch001")
sketch2.AttachmentSupport = (doc.getObject("XY_Plane"), [""])
sketch2.MapMode = "FlatFace"
add_polygon(sketch2, [(29.701522, 39.284064), (52.208167, 44.022305), (54.721495, 32.083997), (32.21485, 27.345756)])  # lines 0-3
sketch2.addConstraint([
    Sketcher.Constraint("Perpendicular", 0, 1),
    Sketcher.Constraint("Perpendicular", 1, 2),
    Sketcher.Constraint("Perpendicular", 2, 3),
    Sketcher.Constraint("Distance", 0, Q("23 mm")),
    Sketcher.Constraint("Distance", 1, Q("12.2 mm")),
    Sketcher.Constraint("DistanceX", -1, 1, 2, 2, Q("32.21485 mm")),
    Sketcher.Constraint("DistanceY", 2, 2, 1, 2, Q("4.738241 mm")),
    Sketcher.Constraint("DistanceY", -1, 1, 0, 2, Q("44.022305 mm")),
])
pocket1 = body.newObject("PartDesign::Pocket", "Pocket")
pocket1.Profile = sketch2
pocket1.Type = "ThroughAll"
pocket1.Reversed = True

# Sketch on XY plane
sketch3 = body.newObject("Sketcher::SketchObject", "Sketch002")
sketch3.AttachmentSupport = (doc.getObject("XY_Plane"), [""])
sketch3.MapMode = "FlatFace"
sketch3.AttachmentOffset = App.Placement(V(0, 0, 3), App.Rotation())
sketch3.addGeometry([
    Part.Circle(V(15.208137, 75.487236, 0), V(0, 0, 1), 3.925),
    Part.Circle(V(29.298137, 81.967908, 0), V(0, 0, 1), 3.925),
    Part.Circle(V(55.588137, 73.65383, 0), V(0, 0, 1), 3.925),
    Part.Circle(V(81.878137, 66.921834, 0), V(0, 0, 1), 3.925),
], False)
sketch3.addConstraint([
    Sketcher.Constraint("Equal", 0, 1),
    Sketcher.Constraint("Equal", 1, 2),
    Sketcher.Constraint("Equal", 2, 3),
    Sketcher.Constraint("Diameter", 0, Q("7.85 mm")),
    Sketcher.Constraint("DistanceX", 0, 3, 1, 3, Q("14.09 mm")),
    Sketcher.Constraint("DistanceX", 1, 3, 2, 3, Q("26.29 mm")),
    Sketcher.Constraint("DistanceX", 2, 3, 3, 3, Q("26.29 mm")),
    Sketcher.Constraint("DistanceY", 3, 3, 0, 3, Q("8.565402 mm")),
    Sketcher.Constraint("DistanceY", -1, 1, 1, 3, Q("81.967908 mm")),
    Sketcher.Constraint("DistanceY", -1, 1, 2, 3, Q("73.65383 mm")),
    Sketcher.Constraint("DistanceX", -1, 1, 0, 3, Q("15.208137 mm")),
    Sketcher.Constraint("DistanceY", -1, 1, 0, 3, Q("75.487236 mm")),
])
pocket2 = body.newObject("PartDesign::Pocket", "Pocket001")
pocket2.Profile = sketch3
pocket2.Type = "ThroughAll"

# Sketch on XY plane
sketch4 = body.newObject("Sketcher::SketchObject", "Sketch003")
sketch4.AttachmentSupport = (doc.getObject("XY_Plane"), [""])
sketch4.MapMode = "FlatFace"
sketch4.AttachmentOffset = App.Placement(V(0, 0, 3), App.Rotation())
sketch4.addGeometry([
    Part.Circle(V(15.208137, 49.987236, 0), V(0, 0, 1), 0.75),
    Part.Circle(V(29.298137, 56.467908, 0), V(0, 0, 1), 0.75),
    Part.Circle(V(55.588137, 48.15383, 0), V(0, 0, 1), 0.75),
    Part.Circle(V(81.878137, 41.421834, 0), V(0, 0, 1), 0.75),
], False)
sketch4.addConstraint([
    Sketcher.Constraint("Equal", 0, 1),
    Sketcher.Constraint("Equal", 1, 2),
    Sketcher.Constraint("Equal", 2, 3),
    Sketcher.Constraint("Diameter", 0, Q("1.5 mm")),
    Sketcher.Constraint("DistanceX", 0, 3, 1, 3, Q("14.09 mm")),
    Sketcher.Constraint("DistanceX", 1, 3, 2, 3, Q("26.29 mm")),
    Sketcher.Constraint("DistanceX", 2, 3, 3, 3, Q("26.29 mm")),
    Sketcher.Constraint("DistanceY", 3, 3, 0, 3, Q("8.565402 mm")),
    Sketcher.Constraint("DistanceY", -1, 1, 1, 3, Q("56.467908 mm")),
    Sketcher.Constraint("DistanceY", -1, 1, 2, 3, Q("48.15383 mm")),
    Sketcher.Constraint("DistanceX", -1, 1, 0, 3, Q("15.208137 mm")),
    Sketcher.Constraint("DistanceY", -1, 1, 0, 3, Q("49.987236 mm")),
])
pocket3 = body.newObject("PartDesign::Pocket", "Pocket002")
pocket3.Profile = sketch4
pocket3.Type = "ThroughAll"

# Sketch on XY plane
sketch5 = body.newObject("Sketcher::SketchObject", "Sketch004")
sketch5.AttachmentSupport = (doc.getObject("XY_Plane"), [""])
sketch5.MapMode = "FlatFace"
sketch5.addGeometry([
    Part.Circle(V(30.958186, 33.31491, 0), V(0, 0, 1), 3.93),
    Part.Circle(V(52.760024, 36.181455, 0), V(0, 0, 1), 0.75),
], False)
sketch5.addConstraint([
    Sketcher.Constraint("Diameter", 1, Q("1.5 mm")),
    Sketcher.Constraint("Diameter", 0, Q("7.86 mm")),
    Sketcher.Constraint("DistanceY", -1, 1, 0, 3, Q("33.31491 mm")),
    Sketcher.Constraint("DistanceX", 0, 3, 1, 3, Q("21.801838 mm")),
    Sketcher.Constraint("DistanceX", -1, 1, 0, 3, Q("30.958186 mm")),
    Sketcher.Constraint("DistanceY", -1, 1, 1, 3, Q("36.181455 mm")),
])
pocket4 = body.newObject("PartDesign::Pocket", "Pocket003")
pocket4.Profile = sketch5
pocket4.Type = "ThroughAll"
pocket4.Reversed = True

# Sketch on XY plane
sketch6 = body.newObject("Sketcher::SketchObject", "Sketch005")
sketch6.AttachmentSupport = (doc.getObject("XY_Plane"), [""])
sketch6.MapMode = "FlatFace"
sketch6.AttachmentOffset = App.Placement(V(0, 0, 3), App.Rotation())
sketch6.addGeometry(Part.Circle(V(55.421931, 38.465172, 0), V(0, 0, 1), 0.75), False)
sketch6.addConstraint([
    Sketcher.Constraint("Diameter", 0, Q("1.5 mm")),
    Sketcher.Constraint("DistanceX", -1, 1, 0, 3, Q("55.421931 mm")),
    Sketcher.Constraint("DistanceY", -1, 1, 0, 3, Q("38.465172 mm")),
])
pocket5 = body.newObject("PartDesign::Pocket", "Pocket004")
pocket5.Profile = sketch6
pocket5.Type = "ThroughAll"

doc.recompute()
